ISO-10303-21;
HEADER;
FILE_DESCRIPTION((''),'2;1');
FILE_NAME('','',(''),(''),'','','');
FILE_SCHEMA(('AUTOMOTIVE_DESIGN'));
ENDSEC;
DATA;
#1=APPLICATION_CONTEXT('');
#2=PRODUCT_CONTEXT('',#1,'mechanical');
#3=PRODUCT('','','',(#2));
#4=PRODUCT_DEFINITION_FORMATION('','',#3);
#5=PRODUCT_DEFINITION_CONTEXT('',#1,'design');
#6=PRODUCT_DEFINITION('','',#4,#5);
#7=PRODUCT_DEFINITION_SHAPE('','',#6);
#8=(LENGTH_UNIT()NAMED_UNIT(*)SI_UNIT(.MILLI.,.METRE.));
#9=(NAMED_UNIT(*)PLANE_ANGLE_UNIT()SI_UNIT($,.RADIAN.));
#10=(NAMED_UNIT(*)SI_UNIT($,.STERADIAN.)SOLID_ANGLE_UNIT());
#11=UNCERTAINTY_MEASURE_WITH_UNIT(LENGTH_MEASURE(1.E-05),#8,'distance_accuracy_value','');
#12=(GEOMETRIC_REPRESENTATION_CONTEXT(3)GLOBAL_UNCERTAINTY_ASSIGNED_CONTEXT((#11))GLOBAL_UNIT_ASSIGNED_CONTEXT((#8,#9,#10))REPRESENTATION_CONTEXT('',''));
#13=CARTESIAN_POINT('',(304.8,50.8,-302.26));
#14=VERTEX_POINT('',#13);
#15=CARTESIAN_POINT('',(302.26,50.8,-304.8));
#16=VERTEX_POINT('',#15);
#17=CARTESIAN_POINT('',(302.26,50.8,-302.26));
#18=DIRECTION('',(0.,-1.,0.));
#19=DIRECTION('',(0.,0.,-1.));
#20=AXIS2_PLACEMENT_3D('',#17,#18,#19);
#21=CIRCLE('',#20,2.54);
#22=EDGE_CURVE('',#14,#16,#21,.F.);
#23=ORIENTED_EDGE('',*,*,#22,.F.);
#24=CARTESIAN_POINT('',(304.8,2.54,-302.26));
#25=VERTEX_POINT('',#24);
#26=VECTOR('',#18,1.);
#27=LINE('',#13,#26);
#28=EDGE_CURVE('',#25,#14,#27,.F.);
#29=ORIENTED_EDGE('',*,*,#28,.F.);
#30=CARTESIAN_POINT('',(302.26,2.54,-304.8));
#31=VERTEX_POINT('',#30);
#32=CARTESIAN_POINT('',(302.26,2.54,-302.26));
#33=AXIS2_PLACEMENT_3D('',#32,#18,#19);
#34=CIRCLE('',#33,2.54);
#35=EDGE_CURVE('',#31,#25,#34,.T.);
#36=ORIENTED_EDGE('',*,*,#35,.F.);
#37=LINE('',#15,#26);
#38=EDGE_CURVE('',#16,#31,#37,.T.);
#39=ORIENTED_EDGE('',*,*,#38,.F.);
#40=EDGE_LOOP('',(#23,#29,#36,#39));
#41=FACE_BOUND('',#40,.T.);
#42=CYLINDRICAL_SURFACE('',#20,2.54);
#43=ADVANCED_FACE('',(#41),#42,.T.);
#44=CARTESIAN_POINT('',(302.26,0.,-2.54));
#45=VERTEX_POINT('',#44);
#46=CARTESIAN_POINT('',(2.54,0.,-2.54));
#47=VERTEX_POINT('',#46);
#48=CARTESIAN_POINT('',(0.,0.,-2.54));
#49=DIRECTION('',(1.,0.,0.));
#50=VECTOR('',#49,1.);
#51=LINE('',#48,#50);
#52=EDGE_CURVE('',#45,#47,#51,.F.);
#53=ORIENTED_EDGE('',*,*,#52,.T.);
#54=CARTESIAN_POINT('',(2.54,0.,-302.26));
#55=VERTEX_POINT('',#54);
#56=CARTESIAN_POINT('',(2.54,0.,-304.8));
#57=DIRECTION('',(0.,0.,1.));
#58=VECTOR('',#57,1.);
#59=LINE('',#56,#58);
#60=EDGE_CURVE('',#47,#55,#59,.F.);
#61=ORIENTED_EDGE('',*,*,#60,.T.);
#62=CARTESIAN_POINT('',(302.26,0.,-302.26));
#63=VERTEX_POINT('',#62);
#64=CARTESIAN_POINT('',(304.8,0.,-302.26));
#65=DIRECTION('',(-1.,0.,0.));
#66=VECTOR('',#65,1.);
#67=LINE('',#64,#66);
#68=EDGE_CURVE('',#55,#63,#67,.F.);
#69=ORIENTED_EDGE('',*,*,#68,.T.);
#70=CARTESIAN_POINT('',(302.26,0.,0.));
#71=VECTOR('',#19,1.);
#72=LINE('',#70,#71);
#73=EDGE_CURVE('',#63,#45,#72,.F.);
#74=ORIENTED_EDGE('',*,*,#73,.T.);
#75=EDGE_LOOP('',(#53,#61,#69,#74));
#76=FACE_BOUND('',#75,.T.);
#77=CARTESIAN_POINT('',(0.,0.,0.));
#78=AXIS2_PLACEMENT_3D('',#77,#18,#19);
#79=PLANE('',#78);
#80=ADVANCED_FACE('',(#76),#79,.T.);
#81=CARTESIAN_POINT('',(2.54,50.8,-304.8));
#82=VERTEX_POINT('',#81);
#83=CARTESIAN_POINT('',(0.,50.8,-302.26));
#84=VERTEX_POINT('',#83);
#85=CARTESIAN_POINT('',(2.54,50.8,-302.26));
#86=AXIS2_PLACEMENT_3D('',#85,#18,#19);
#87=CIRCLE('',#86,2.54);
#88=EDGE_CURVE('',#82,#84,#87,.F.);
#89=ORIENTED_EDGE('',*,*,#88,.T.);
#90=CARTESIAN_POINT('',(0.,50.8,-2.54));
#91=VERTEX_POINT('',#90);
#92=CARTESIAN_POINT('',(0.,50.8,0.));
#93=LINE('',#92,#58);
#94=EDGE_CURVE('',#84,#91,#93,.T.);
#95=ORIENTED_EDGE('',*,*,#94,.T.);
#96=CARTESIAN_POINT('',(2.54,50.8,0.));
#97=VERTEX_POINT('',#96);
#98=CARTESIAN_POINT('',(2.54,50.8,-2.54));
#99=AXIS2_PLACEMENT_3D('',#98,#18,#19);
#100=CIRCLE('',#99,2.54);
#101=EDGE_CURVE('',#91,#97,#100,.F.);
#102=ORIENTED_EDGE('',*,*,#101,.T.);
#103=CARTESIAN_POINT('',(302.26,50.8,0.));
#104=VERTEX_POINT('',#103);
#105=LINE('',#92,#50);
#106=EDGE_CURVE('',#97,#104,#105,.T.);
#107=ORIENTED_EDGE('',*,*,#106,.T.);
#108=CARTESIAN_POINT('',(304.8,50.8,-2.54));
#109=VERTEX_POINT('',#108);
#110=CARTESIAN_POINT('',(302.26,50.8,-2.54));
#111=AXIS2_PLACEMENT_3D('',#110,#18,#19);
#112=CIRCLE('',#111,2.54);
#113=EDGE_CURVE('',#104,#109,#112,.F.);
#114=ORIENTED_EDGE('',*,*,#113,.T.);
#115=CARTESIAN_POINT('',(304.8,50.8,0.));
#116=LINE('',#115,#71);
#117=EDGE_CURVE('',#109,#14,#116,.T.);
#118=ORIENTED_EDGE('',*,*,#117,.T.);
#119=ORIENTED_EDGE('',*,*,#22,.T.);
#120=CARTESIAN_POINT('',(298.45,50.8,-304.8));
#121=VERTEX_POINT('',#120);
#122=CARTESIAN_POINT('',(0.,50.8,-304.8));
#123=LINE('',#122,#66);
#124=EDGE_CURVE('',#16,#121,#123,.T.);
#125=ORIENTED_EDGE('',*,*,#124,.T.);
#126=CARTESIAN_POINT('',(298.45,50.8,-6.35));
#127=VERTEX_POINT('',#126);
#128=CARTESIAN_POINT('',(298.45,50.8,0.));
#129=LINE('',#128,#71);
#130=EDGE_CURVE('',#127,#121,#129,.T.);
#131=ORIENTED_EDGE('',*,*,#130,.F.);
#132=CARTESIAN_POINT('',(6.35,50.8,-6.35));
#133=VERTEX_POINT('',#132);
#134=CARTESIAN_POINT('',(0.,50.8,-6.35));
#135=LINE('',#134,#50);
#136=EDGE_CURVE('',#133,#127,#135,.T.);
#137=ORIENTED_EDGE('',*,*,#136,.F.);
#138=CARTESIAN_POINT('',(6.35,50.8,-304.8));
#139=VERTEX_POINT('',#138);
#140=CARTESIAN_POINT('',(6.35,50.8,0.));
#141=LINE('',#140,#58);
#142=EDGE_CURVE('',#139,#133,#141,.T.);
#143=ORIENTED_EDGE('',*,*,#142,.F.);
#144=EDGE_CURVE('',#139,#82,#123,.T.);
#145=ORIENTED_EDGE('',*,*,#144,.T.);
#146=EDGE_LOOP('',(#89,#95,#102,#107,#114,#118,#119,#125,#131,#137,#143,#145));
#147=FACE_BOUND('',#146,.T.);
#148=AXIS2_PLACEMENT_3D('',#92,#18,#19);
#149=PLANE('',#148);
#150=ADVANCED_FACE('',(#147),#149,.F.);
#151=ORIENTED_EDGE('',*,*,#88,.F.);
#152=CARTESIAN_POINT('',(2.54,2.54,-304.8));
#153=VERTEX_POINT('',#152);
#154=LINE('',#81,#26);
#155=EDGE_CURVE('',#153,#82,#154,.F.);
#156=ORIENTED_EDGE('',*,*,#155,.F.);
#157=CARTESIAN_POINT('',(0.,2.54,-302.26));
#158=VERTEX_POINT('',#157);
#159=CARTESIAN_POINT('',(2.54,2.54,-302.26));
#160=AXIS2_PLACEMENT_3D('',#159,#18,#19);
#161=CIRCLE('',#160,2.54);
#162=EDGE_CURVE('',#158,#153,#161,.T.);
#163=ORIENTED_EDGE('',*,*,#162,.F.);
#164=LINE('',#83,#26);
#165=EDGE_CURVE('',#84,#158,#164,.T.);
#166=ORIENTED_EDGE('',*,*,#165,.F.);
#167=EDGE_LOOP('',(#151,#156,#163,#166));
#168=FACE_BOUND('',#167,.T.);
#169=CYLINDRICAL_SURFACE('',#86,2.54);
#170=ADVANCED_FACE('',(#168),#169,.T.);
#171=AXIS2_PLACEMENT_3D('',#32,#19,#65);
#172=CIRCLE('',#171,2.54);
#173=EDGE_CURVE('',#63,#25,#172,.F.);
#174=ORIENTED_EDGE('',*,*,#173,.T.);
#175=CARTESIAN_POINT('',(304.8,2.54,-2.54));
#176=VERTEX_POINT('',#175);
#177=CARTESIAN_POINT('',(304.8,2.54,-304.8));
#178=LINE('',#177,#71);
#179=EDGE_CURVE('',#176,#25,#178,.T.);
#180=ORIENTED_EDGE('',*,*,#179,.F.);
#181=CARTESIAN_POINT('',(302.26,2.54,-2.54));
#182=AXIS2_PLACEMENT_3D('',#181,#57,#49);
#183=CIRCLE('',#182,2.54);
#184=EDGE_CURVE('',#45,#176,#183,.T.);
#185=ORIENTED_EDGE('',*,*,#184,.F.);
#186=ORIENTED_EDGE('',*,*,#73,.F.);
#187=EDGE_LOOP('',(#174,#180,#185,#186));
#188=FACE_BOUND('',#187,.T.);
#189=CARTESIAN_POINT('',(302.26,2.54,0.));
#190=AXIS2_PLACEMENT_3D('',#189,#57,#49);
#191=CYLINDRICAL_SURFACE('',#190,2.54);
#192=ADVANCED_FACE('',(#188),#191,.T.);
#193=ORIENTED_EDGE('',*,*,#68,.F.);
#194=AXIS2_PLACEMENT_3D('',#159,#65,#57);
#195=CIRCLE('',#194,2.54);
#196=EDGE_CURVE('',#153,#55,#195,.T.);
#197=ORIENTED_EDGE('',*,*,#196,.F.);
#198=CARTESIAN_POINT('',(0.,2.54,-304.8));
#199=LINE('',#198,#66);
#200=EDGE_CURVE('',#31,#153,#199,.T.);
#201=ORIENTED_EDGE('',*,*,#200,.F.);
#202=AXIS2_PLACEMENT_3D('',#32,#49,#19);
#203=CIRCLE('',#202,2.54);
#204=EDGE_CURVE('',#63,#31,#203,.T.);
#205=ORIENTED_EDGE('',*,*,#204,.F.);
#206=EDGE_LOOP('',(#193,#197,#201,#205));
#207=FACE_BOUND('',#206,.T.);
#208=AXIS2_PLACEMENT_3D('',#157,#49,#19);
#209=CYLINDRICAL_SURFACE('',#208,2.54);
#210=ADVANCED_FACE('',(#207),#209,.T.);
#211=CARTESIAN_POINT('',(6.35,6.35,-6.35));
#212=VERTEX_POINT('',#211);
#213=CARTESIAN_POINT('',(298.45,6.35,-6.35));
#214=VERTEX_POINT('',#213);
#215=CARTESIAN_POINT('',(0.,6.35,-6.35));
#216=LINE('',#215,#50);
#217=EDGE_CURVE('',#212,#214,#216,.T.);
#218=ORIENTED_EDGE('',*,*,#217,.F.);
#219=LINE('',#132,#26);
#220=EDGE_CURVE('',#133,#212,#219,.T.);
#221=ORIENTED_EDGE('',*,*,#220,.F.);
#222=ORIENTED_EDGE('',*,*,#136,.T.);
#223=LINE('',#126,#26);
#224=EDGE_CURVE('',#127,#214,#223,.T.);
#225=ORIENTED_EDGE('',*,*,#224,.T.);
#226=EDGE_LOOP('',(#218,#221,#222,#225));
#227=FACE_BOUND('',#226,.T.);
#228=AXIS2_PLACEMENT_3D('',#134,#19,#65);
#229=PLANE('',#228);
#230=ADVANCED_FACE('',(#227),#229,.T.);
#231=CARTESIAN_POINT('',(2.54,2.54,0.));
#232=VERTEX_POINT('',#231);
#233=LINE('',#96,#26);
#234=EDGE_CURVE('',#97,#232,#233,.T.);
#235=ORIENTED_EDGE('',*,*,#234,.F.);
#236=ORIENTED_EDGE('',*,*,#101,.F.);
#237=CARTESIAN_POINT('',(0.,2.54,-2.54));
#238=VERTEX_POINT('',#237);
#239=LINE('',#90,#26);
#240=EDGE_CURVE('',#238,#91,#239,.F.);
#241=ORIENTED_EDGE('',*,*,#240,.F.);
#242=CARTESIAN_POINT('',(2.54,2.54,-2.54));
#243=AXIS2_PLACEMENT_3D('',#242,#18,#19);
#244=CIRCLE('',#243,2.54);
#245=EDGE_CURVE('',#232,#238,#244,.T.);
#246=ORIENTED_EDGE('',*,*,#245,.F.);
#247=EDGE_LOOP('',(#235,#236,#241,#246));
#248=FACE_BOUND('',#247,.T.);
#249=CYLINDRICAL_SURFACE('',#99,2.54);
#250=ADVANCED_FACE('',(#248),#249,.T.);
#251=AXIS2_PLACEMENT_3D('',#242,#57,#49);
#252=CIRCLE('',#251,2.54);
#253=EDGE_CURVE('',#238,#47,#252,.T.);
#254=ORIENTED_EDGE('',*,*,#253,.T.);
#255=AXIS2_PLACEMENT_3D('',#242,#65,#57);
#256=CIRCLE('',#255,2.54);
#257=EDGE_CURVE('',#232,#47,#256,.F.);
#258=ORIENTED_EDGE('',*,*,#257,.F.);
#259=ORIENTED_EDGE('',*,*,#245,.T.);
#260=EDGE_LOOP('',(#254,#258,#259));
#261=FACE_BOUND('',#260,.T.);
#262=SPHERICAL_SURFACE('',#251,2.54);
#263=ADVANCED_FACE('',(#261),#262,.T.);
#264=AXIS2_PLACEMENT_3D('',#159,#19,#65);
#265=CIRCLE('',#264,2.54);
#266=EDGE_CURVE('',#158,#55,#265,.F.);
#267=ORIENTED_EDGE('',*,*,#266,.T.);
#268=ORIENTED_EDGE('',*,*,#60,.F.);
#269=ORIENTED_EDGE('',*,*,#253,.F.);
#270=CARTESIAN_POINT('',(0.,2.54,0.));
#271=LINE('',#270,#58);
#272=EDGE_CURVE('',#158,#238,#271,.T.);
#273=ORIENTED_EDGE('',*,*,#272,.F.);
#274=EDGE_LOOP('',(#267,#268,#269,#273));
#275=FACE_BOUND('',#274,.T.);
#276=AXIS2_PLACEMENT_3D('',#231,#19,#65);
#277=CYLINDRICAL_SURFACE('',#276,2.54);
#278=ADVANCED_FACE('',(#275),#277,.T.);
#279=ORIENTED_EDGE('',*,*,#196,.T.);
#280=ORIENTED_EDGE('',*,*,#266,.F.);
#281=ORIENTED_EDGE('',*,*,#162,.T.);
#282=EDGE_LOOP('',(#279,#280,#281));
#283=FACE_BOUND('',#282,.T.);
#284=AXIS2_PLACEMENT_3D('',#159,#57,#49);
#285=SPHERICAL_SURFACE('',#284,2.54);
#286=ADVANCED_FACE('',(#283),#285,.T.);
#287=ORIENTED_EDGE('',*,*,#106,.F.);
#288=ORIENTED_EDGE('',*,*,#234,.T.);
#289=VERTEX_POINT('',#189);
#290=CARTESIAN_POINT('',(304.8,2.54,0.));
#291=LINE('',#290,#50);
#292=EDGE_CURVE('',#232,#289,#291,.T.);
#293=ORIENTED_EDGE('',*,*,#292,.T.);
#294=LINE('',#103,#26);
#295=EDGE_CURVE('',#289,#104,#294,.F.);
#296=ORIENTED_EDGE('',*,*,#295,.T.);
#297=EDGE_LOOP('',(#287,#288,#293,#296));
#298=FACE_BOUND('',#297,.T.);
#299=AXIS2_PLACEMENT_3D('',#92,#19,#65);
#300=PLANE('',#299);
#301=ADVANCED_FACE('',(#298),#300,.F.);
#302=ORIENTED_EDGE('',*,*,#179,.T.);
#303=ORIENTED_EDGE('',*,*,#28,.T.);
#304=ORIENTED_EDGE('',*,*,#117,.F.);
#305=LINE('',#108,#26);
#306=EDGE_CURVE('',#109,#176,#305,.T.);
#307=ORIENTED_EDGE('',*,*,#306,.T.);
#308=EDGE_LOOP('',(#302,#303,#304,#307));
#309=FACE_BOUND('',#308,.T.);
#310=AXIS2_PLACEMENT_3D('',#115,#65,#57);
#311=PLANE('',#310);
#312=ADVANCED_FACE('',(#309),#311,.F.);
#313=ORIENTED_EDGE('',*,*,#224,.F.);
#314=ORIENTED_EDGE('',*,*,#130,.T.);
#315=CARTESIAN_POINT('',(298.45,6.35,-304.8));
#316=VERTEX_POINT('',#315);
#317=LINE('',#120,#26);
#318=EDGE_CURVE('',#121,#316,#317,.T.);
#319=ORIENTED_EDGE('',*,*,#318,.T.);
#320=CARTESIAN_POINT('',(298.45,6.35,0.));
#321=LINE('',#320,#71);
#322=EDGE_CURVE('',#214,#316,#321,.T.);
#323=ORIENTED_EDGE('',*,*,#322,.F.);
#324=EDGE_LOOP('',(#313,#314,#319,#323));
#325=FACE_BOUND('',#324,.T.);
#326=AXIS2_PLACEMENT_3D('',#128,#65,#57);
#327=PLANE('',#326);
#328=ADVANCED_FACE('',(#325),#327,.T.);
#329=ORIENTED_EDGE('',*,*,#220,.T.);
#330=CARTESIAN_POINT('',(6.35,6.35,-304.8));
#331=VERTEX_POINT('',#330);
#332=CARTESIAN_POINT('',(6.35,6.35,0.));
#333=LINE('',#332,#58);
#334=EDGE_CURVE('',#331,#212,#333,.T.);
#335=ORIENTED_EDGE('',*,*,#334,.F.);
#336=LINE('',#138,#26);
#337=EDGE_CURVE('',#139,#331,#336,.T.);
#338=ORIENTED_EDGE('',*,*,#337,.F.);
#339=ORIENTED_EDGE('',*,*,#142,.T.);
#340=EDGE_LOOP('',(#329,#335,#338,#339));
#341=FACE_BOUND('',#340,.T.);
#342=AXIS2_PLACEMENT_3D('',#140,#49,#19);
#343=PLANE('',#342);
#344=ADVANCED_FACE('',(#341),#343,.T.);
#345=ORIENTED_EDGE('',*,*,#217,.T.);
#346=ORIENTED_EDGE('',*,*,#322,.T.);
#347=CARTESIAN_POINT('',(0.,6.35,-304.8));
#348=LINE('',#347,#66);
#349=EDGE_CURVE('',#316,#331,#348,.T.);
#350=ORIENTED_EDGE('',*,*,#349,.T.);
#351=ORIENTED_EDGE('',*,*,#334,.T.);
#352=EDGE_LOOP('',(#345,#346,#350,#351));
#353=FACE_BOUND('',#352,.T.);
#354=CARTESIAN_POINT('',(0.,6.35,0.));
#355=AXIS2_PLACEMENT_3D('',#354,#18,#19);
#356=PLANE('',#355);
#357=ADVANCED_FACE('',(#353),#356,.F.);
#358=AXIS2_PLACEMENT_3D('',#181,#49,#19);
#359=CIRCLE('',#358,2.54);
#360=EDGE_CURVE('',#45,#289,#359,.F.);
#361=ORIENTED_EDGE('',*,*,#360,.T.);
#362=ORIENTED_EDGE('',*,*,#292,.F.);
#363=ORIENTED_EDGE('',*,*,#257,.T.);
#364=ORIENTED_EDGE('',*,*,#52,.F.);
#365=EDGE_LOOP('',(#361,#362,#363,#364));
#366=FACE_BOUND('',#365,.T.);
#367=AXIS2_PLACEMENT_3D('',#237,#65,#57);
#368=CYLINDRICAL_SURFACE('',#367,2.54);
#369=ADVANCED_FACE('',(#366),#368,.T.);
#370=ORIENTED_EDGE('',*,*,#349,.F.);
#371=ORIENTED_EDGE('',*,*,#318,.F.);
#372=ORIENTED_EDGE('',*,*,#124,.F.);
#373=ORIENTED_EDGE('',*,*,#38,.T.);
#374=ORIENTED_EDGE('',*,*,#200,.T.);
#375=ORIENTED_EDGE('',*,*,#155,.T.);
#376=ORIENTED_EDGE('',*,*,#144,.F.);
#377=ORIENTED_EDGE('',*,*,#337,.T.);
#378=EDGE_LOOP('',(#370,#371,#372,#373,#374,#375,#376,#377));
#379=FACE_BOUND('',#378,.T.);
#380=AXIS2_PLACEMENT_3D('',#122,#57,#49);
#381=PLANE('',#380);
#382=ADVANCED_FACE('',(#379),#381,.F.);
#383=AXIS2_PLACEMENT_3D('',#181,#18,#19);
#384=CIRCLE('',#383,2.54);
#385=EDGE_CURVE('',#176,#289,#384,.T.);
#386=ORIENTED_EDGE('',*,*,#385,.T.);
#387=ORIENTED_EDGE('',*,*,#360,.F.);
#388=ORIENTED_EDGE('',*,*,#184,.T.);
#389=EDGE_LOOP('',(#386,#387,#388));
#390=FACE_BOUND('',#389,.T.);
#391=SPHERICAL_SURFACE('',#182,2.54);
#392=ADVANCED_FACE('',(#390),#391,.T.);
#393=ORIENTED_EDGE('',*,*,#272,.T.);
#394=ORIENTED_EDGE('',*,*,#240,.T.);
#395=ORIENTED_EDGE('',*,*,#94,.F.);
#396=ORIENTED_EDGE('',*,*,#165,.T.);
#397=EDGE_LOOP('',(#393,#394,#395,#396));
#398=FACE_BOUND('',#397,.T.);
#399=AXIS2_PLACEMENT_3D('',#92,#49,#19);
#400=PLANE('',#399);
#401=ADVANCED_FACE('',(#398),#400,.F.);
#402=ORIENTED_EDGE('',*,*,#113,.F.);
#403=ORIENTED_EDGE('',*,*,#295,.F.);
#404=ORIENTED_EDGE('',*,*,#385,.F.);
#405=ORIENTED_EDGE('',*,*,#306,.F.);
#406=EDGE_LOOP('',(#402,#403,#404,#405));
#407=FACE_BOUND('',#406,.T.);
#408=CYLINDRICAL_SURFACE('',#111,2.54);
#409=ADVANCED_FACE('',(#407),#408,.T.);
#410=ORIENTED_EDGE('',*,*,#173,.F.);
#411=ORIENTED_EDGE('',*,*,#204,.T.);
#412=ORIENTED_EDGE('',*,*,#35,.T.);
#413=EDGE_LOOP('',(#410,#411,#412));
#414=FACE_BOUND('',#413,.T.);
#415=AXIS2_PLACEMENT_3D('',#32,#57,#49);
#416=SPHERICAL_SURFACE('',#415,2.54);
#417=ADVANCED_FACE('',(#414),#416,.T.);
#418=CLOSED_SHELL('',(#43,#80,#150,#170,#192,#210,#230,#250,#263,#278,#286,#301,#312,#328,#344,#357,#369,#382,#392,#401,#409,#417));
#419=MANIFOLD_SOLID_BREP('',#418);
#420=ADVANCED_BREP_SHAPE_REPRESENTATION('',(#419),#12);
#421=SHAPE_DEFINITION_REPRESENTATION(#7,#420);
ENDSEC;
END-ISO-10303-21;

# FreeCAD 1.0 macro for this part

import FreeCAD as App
import Part
import Sketcher

V = App.Vector
Q = App.Units.Quantity


def edges_at(feature, points):
    """Names of the edges that pass closest to the given points."""
    edges = feature.Shape.Edges
    near = lambda p: min(range(len(edges)), key=lambda i: edges[i].distToShape(Part.Vertex(*p))[0])
    return sorted({f"Edge{near(p) + 1}" for p in points})


def faces_at(feature, points):
    """Names of the faces that lie closest to the given points."""
    faces = feature.Shape.Faces
    near = lambda p: min(range(len(faces)), key=lambda i: faces[i].distToShape(Part.Vertex(*p))[0])
    return sorted({f"Face{near(p) + 1}" for p in points})

doc = App.newDocument("Part")
params = doc.addObject("Spreadsheet::Sheet", "Params")
for row, (alias, value) in enumerate([
    ("sketch1_width", "12 in"),
    ("pad1_length", "2 in"),
    ("thickness_wall", "0.25 in"),
    ("fillet_radius", "0.1 in"),
], start=1):
    params.set(f"A{row}", alias)
    params.set(f"B{row}", "=" + value)
    params.setAlias(f"B{row}", alias)

body = doc.addObject("PartDesign::Body", "Body")

# Sketch on XZ plane
sketch1 = body.newObject("Sketcher::SketchObject", "Sketch")
sketch1.AttachmentSupport = (doc.getObject("XZ_Plane"), [""])
sketch1.MapMode = "FlatFace"
sketch1.addGeometry([
    Part.LineSegment(V(0, -305, 0), V(0, 0, 0)),
    Part.LineSegment(V(0, 0, 0), V(305, 0, 0)),
    Part.LineSegment(V(305, 0, 0), V(305, -305, 0)),
    Part.LineSegment(V(305, -305, 0), V(0, -305, 0)),
], False)
sketch1.addConstraint([
    Sketcher.Constraint("Coincident", 0, 2, 1, 1),
    Sketcher.Constraint("Coincident", 1, 2, 2, 1),
    Sketcher.Constraint("Coincident", 2, 2, 3, 1),
    Sketcher.Constraint("Coincident", 3, 2, 0, 1),
    Sketcher.Constraint("Vertical", 0),
    Sketcher.Constraint("Horizontal", 1),
    Sketcher.Constraint("Vertical", 2),
    Sketcher.Constraint("Horizontal", 3),
    Sketcher.Constraint("Coincident", 0, 2, -1, 1),
    Sketcher.Constraint("Equal", 3, 0),
    Sketcher.Constraint("DistanceX", 1, 1, 1, 2, Q("12 in")),
])
sketch1.setExpression("Constraints[10]", "Params.sketch1_width")
pad1 = body.newObject("PartDesign::Pad", "Pad")
pad1.Profile = sketch1
pad1.setExpression("Length", "Params.pad1_length")
pad1.Reversed = True
doc.recompute()

thickness = body.newObject("PartDesign::Thickness", "Thickness")
thickness.Base = (pad1, faces_at(pad1, [(152.4, 50.8, -152.4), (152.4, 25.4, -304.8)]))
thickness.setExpression("Value", "Params.thickness_wall")
thickness.Reversed = True
thickness.Join = "Intersection"
doc.recompute()

fillet = body.newObject("PartDesign::Fillet", "Fillet")
fillet.Base = (thickness, edges_at(thickness, [
    (152.4, 0, -304.8),
    (304.8, 0, -152.4),
    (152.4, 0, 0),
    (0, 0, -152.4),
    (0, 25.4, -304.8),
    (304.8, 25.4, -304.8),
    (304.8, 25.4, 0),
    (0, 25.4, 0),
]))
fillet.setExpression("Radius", "Params.fillet_radius")

doc.recompute()
